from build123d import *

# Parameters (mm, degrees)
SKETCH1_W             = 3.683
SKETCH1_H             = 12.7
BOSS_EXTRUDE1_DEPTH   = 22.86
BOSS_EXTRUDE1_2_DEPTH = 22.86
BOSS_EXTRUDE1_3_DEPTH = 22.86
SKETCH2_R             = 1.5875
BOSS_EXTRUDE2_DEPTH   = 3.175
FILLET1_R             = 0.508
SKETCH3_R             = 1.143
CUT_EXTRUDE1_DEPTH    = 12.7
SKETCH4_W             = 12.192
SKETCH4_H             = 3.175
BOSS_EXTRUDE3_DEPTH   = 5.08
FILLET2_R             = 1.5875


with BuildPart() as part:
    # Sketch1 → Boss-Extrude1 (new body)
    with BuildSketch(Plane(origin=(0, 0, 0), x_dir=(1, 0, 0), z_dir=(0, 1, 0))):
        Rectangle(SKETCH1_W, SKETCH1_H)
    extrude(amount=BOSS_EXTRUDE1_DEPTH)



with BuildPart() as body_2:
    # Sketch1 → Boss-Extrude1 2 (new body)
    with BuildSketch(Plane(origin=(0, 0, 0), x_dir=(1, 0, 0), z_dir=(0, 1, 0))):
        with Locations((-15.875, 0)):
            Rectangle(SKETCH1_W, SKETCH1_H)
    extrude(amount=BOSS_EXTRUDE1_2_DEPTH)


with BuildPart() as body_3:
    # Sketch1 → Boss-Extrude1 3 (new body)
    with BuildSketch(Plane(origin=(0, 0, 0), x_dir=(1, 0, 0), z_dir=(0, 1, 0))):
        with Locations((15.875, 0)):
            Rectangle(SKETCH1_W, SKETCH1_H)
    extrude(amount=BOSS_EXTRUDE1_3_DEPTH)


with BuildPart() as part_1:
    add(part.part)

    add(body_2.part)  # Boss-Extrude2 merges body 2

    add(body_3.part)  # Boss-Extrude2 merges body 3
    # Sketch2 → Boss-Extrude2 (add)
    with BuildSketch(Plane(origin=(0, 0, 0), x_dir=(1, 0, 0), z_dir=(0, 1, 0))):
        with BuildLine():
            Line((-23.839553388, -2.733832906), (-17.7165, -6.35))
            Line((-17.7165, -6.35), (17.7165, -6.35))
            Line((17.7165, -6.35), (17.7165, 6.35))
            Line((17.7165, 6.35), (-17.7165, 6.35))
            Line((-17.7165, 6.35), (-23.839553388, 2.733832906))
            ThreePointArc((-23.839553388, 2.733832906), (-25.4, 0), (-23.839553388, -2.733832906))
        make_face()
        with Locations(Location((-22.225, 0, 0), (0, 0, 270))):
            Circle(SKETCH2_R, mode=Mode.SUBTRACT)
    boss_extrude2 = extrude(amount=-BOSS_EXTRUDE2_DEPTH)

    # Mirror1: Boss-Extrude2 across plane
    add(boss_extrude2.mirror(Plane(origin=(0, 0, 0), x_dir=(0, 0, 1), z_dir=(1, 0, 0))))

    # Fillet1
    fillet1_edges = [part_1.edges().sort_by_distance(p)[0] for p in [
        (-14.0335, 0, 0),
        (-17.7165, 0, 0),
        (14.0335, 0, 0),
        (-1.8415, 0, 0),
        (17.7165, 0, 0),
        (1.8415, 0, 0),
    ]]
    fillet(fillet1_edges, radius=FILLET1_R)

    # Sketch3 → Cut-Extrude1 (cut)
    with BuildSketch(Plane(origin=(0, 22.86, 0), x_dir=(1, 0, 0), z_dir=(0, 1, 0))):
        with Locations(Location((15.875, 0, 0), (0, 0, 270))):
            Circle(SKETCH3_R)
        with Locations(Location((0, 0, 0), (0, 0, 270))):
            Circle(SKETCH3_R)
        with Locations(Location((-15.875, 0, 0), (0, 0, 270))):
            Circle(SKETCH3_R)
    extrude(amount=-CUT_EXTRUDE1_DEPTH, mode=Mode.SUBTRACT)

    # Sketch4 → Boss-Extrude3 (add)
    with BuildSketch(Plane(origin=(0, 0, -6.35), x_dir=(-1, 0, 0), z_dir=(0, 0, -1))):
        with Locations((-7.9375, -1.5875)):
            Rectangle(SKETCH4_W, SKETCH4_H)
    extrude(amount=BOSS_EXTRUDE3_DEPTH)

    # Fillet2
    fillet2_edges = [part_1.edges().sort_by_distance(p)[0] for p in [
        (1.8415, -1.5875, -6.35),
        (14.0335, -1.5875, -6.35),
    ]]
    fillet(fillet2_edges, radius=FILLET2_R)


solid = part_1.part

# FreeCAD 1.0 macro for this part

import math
import FreeCAD as App
import Part
import Sketcher
Q = App.Units.Quantity


def edges_at(feature, points):
    """Names of the edges that pass closest to the given points."""
    edges = feature.Shape.Edges
    near = lambda p: min(range(len(edges)), key=lambda i: edges[i].distToShape(Part.Vertex(*p))[0])
    return sorted({f"Edge{near(p) + 1}" for p in points})

doc = App.newDocument("Part")
body = doc.addObject("PartDesign::Body", "Body")

# Sketch on XZ plane
sketch1 = doc.addObject("Sketcher::SketchObject", "Sketch")
body.addObject(sketch1)
sketch1.AttachmentSupport = (doc.XZ_Plane, [""])
sketch1.MapMode = "FlatFace"
sketch1.addGeometry([
    Part.LineSegment(App.Vector(-1.8415, -6.35, 0), App.Vector(-1.8415, 6.35, 0)),
    Part.LineSegment(App.Vector(-1.8415, 6.35, 0), App.Vector(1.8415, 6.35, 0)),
    Part.LineSegment(App.Vector(1.8415, 6.35, 0), App.Vector(1.8415, -6.35, 0)),
    Part.LineSegment(App.Vector(1.8415, -6.35, 0), App.Vector(-1.8415, -6.35, 0)),
], False)
sketch1.addConstraint([
    Sketcher.Constraint("Coincident", 0, 2, 1, 1),
    Sketcher.Constraint("Coincident", 1, 2, 2, 1),
    Sketcher.Constraint("Coincident", 2, 2, 3, 1),
    Sketcher.Constraint("Coincident", 3, 2, 0, 1),
    Sketcher.Constraint("Vertical", 0),
    Sketcher.Constraint("Horizontal", 1),
    Sketcher.Constraint("Vertical", 2),
    Sketcher.Constraint("Horizontal", 3),
    Sketcher.Constraint("Symmetric", 0, 2, 2, 2, -1, 1),
    Sketcher.Constraint("DistanceY", 0, 1, 0, 2, Q("0.5 in")),
    Sketcher.Constraint("DistanceX", 1, 1, 1, 2, Q("0.145 in")),
])
pad1 = doc.addObject("PartDesign::Pad", "Pad")
body.addObject(pad1)
pad1.Profile = sketch1
pad1.Length = Q("0.9 in")
pad1.Reversed = True
body2 = doc.addObject("PartDesign::Body", "Body001")

# Sketch on XZ plane
sketch2 = doc.addObject("Sketcher::SketchObject", "Sketch001")
body2.addObject(sketch2)
sketch2.AttachmentSupport = (doc.getObject("XZ_Plane001"), [""])
sketch2.MapMode = "FlatFace"
sketch2.addGeometry([
    Part.LineSegment(App.Vector(-17.7165, -6.35, 0), App.Vector(-17.7165, 6.35, 0)),
    Part.LineSegment(App.Vector(-17.7165, 6.35, 0), App.Vector(-14.0335, 6.35, 0)),
    Part.LineSegment(App.Vector(-14.0335, 6.35, 0), App.Vector(-14.0335, -6.35, 0)),
    Part.LineSegment(App.Vector(-14.0335, -6.35, 0), App.Vector(-17.7165, -6.35, 0)),
], False)
sketch2.addConstraint([
    Sketcher.Constraint("Coincident", 0, 2, 1, 1),
    Sketcher.Constraint("Coincident", 1, 2, 2, 1),
    Sketcher.Constraint("Coincident", 2, 2, 3, 1),
    Sketcher.Constraint("Coincident", 3, 2, 0, 1),
    Sketcher.Constraint("Vertical", 0),
    Sketcher.Constraint("Horizontal", 1),
    Sketcher.Constraint("Vertical", 2),
    Sketcher.Constraint("Horizontal", 3),
    Sketcher.Constraint("DistanceY", 0, 1, 0, 2, Q("0.5 in")),
    Sketcher.Constraint("DistanceX", 1, 1, 1, 2, Q("0.145 in")),
    Sketcher.Constraint("DistanceY", -1, 1, 0, 2, Q("0.25 in")),
    Sketcher.Constraint("DistanceX", 0, 2, -1, 1, Q("0.6975 in")),
])
pad2 = doc.addObject("PartDesign::Pad", "Pad001")
body2.addObject(pad2)
pad2.Profile = sketch2
pad2.Length = Q("0.9 in")
pad2.Reversed = True
body3 = doc.addObject("PartDesign::Body", "Body002")

# Sketch on XZ plane
sketch3 = doc.addObject("Sketcher::SketchObject", "Sketch002")
body3.addObject(sketch3)
sketch3.AttachmentSupport = (doc.getObject("XZ_Plane002"), [""])
sketch3.MapMode = "FlatFace"
sketch3.addGeometry([
    Part.LineSegment(App.Vector(14.0335, -6.35, 0), App.Vector(14.0335, 6.35, 0)),
    Part.LineSegment(App.Vector(14.0335, 6.35, 0), App.Vector(17.7165, 6.35, 0)),
    Part.LineSegment(App.Vector(17.7165, 6.35, 0), App.Vector(17.7165, -6.35, 0)),
    Part.LineSegment(App.Vector(17.7165, -6.35, 0), App.Vector(14.0335, -6.35, 0)),
], False)
sketch3.addConstraint([
    Sketcher.Constraint("Coincident", 0, 2, 1, 1),
    Sketcher.Constraint("Coincident", 1, 2, 2, 1),
    Sketcher.Constraint("Coincident", 2, 2, 3, 1),
    Sketcher.Constraint("Coincident", 3, 2, 0, 1),
    Sketcher.Constraint("Vertical", 0),
    Sketcher.Constraint("Horizontal", 1),
    Sketcher.Constraint("Vertical", 2),
    Sketcher.Constraint("Horizontal", 3),
    Sketcher.Constraint("DistanceY", 0, 1, 0, 2, Q("0.5 in")),
    Sketcher.Constraint("DistanceX", 1, 1, 1, 2, Q("0.145 in")),
    Sketcher.Constraint("DistanceY", -1, 1, 0, 2, Q("0.25 in")),
    Sketcher.Constraint("DistanceX", -1, 1, 0, 2, Q("0.5525 in")),
])
pad3 = doc.addObject("PartDesign::Pad", "Pad002")
body3.addObject(pad3)
pad3.Profile = sketch3
pad3.Length = Q("0.9 in")
pad3.Reversed = True
body.AllowCompound = True
doc.recompute()

boolean = doc.addObject("PartDesign::Boolean", "Boolean")
body.addObject(boolean)
boolean.Type = "Fuse"
boolean.addObjects([body2])
doc.recompute()

boolean2 = doc.addObject("PartDesign::Boolean", "Boolean001")
body.addObject(boolean2)
boolean2.Type = "Fuse"
boolean2.addObjects([body3])

# Sketch on XZ plane
sketch4 = doc.addObject("Sketcher::SketchObject", "Sketch003")
body.addObject(sketch4)
sketch4.AttachmentSupport = (doc.XZ_Plane, [""])
sketch4.MapMode = "FlatFace"
sketch4.addGeometry([
    Part.LineSegment(App.Vector(-23.839553, 2.733833, 0), App.Vector(-17.7165, 6.35, 0)),  # 0
    Part.LineSegment(App.Vector(-17.7165, 6.35, 0), App.Vector(17.7165, 6.35, 0)),  # 1
    Part.LineSegment(App.Vector(17.7165, 6.35, 0), App.Vector(17.7165, -6.35, 0)),  # 2
    Part.LineSegment(App.Vector(17.7165, -6.35, 0), App.Vector(-17.7165, -6.35, 0)),  # 3
    Part.LineSegment(App.Vector(-17.7165, -6.35, 0), App.Vector(-23.839553, -2.733833, 0)),  # 4
    Part.ArcOfCircle(Part.Circle(App.Vector(-22.225, 0, 0), App.Vector(0, 0, 1), 3.175), math.radians(120.565348), math.radians(239.434652)),  # 5
    Part.Circle(App.Vector(-22.225, 0, 0), App.Vector(0, 0, 1), 1.5875),  # 6
], False)
sketch4.addConstraint([
    Sketcher.Constraint("Coincident", 0, 2, 1, 1),
    Sketcher.Constraint("Coincident", 1, 2, 2, 1),
    Sketcher.Constraint("Coincident", 2, 2, 3, 1),
    Sketcher.Constraint("Coincident", 3, 2, 4, 1),
    Sketcher.Constraint("Tangent", 4, 2, 5, 2),
    Sketcher.Constraint("Tangent", 5, 1, 0, 1),
    Sketcher.Constraint("Horizontal", 1),
    Sketcher.Constraint("Vertical", 2),
    Sketcher.Constraint("Horizontal", 3),
    Sketcher.Constraint("Coincident", 6, 3, 5, 3),
    Sketcher.Constraint("Symmetric", 0, 2, 2, 2, -1, 1),
    Sketcher.Constraint("Symmetric", 4, 2, 5, 1, -1),
    Sketcher.Constraint("Diameter", 6, Q("0.125 in")),
    Sketcher.Constraint("DistanceY", 2, 2, 2, 1, Q("0.5 in")),
    Sketcher.Constraint("Radius", 5, Q("0.125 in")),
    Sketcher.Constraint("DistanceX", 1, 1, 1, 2, Q("1.395 in")),
    Sketcher.Constraint("DistanceX", 5, 3, -1, 1, Q("0.875 in")),
])
pad4 = doc.addObject("PartDesign::Pad", "Pad003")
body.addObject(pad4)
pad4.Profile = sketch4
pad4.Length = Q("0.125 in")
doc.recompute()

mirrored = doc.addObject("PartDesign::Mirrored", "Mirrored")
body.addObject(mirrored)
mirrored.Originals = [pad4]
mirrored.MirrorPlane = (doc.YZ_Plane, [""])
body.Tip = mirrored
doc.recompute()

fillet = doc.addObject("PartDesign::Fillet", "Fillet")
body.addObject(fillet)
fillet.Base = (mirrored, edges_at(mirrored, [
    (-14.034, 0, 0),
    (-17.716, 0, 0),
    (14.034, 0, 0),
    (-1.841, 0, 0),
    (17.716, 0, 0),
    (1.841, 0, 0),
]))
fillet.Radius = Q("0.02 in")

# Sketch on XZ plane
sketch5 = doc.addObject("Sketcher::SketchObject", "Sketch004")
body.addObject(sketch5)
sketch5.AttachmentSupport = (doc.XZ_Plane, [""])
sketch5.MapMode = "FlatFace"
sketch5.AttachmentOffset = App.Placement(App.Vector(0, 0, -0.9 * 25.4), App.Rotation())
sketch5.addGeometry([
    Part.Circle(App.Vector(15.875, 0, 0), App.Vector(0, 0, 1), 1.143),
    Part.Circle(App.Vector(0, 0, 0), App.Vector(0, 0, 1), 1.143),
    Part.Circle(App.Vector(-15.875, 0, 0), App.Vector(0, 0, 1), 1.143),
], False)
sketch5.addConstraint([
    Sketcher.Constraint("Coincident", 1, 3, -1, 1),
    Sketcher.Constraint("Equal", 0, 1),
    Sketcher.Constraint("Equal", 1, 2),
    Sketcher.Constraint("Symmetric", 0, 3, 2, 3, -1, 1),
    Sketcher.Constraint("PointOnObject", 0, 3, -1),
    Sketcher.Constraint("Diameter", 0, Q("0.09 in")),
    Sketcher.Constraint("DistanceX", 2, 3, 0, 3, Q("1.25 in")),
])
pocket1 = doc.addObject("PartDesign::Pocket", "Pocket")
body.addObject(pocket1)
pocket1.Profile = sketch5
pocket1.Length = Q("0.5 in")
pocket1.Reversed = True

# Sketch on XY plane
sketch6 = doc.addObject("Sketcher::SketchObject", "Sketch005")
body.addObject(sketch6)
sketch6.AttachmentSupport = (doc.XY_Plane, [""])
sketch6.MapMode = "FlatFace"
sketch6.AttachmentOffset = App.Placement(App.Vector(0, 0, -0.25 * 25.4), App.Rotation())
sketch6.addGeometry([
    Part.LineSegment(App.Vector(14.0335, 0, 0), App.Vector(14.0335, -3.175, 0)),
    Part.LineSegment(App.Vector(14.0335, -3.175, 0), App.Vector(1.8415, -3.175, 0)),
    Part.LineSegment(App.Vector(1.8415, -3.175, 0), App.Vector(1.8415, 0, 0)),
    Part.LineSegment(App.Vector(1.8415, 0, 0), App.Vector(14.0335, 0, 0)),
], False)
sketch6.addConstraint([
    Sketcher.Constraint("Coincident", 0, 2, 1, 1),
    Sketcher.Constraint("Coincident", 1, 2, 2, 1),
    Sketcher.Constraint("Coincident", 2, 2, 3, 1),
    Sketcher.Constraint("Coincident", 3, 2, 0, 1),
    Sketcher.Constraint("Vertical", 0),
    Sketcher.Constraint("Horizontal", 1),
    Sketcher.Constraint("Vertical", 2),
    Sketcher.Constraint("Horizontal", 3),
    Sketcher.Constraint("PointOnObject", 2, 2, -1),
    Sketcher.Constraint("DistanceX", 1, 2, 1, 1, Q("0.48 in")),
    Sketcher.Constraint("DistanceY", 0, 2, 0, 1, Q("0.125 in")),
    Sketcher.Constraint("DistanceX", -1, 1, 0, 2, Q("0.5525 in")),
])
pad5 = doc.addObject("PartDesign::Pad", "Pad004")
body.addObject(pad5)
pad5.Profile = sketch6
pad5.Length = Q("0.2 in")
pad5.Reversed = True
doc.recompute()

fillet2 = doc.addObject("PartDesign::Fillet", "Fillet001")
body.addObject(fillet2)
fillet2.Base = (pad5, edges_at(pad5, [(1.841, -1.587, -6.35), (14.034, -1.587, -6.35)]))
fillet2.Radius = Q("0.0625 in")

doc.recompute()
